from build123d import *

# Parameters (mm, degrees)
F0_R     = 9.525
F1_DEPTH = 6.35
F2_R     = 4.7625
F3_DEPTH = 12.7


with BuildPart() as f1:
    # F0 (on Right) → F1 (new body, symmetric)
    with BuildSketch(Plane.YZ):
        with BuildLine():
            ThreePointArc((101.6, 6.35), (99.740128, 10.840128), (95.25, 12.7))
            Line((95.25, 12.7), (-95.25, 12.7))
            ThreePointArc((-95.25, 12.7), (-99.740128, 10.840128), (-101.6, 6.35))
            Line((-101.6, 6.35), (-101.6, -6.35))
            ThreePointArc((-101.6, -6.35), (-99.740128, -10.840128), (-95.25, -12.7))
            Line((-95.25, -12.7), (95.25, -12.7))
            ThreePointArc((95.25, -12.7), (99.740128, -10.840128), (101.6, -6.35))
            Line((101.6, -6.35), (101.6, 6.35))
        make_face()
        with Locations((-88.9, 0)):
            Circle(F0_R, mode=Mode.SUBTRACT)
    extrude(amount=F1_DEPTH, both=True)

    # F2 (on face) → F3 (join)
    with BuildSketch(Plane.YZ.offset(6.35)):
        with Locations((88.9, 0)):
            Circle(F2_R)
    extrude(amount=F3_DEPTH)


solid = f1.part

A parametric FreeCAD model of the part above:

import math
import FreeCAD as App
import Part
import Sketcher
from FreeCAD import Vector
Q = App.Units.Quantity

doc = App.newDocument("Part")
body = doc.addObject("PartDesign::Body", "Body")

sketch1 = body.newObject("Sketcher::SketchObject", "Sketch")
sketch1.AttachmentSupport = (doc.getObject("YZ_Plane"), [""])
sketch1.MapMode = "FlatFace"
sketch1.addGeometry(Part.ArcOfCircle(Part.Circle(Vector(95, 6, 0), Vector(0, 0, 1), 6), math.radians(0), math.radians(90)), False)
sketch1.addGeometry(Part.LineSegment(Vector(95, 13, 0), Vector(-95, 13, 0)), False)
sketch1.addGeometry(Part.ArcOfCircle(Part.Circle(Vector(-95, 6, 0), Vector(0, 0, 1), 6), math.radians(90), math.radians(180)), False)
sketch1.addGeometry(Part.LineSegment(Vector(-102, 6, 0), Vector(-102, -6, 0)), False)
sketch1.addGeometry(Part.ArcOfCircle(Part.Circle(Vector(-95, -6, 0), Vector(0, 0, 1), 6), math.radians(-180), math.radians(-90)), False)
sketch1.addGeometry(Part.LineSegment(Vector(-95, -13, 0), Vector(95, -13, 0)), False)
sketch1.addGeometry(Part.ArcOfCircle(Part.Circle(Vector(95, -6, 0), Vector(0, 0, 1), 6), math.radians(-90), math.radians(0)), False)
sketch1.addGeometry(Part.LineSegment(Vector(102, -6, 0), Vector(102, 6, 0)), False)
sketch1.addGeometry(Part.Circle(Vector(-89, 0, 0), Vector(0, 0, 1), 10), False)
sketch1.addConstraint(Sketcher.Constraint("Tangent", 0, 2, 1, 1))
sketch1.addConstraint(Sketcher.Constraint("Tangent", 1, 2, 2, 1))
sketch1.addConstraint(Sketcher.Constraint("Tangent", 2, 2, 3, 1))
sketch1.addConstraint(Sketcher.Constraint("Tangent", 3, 2, 4, 1))
sketch1.addConstraint(Sketcher.Constraint("Tangent", 4, 2, 5, 1))
sketch1.addConstraint(Sketcher.Constraint("Tangent", 5, 2, 6, 1))
sketch1.addConstraint(Sketcher.Constraint("Tangent", 6, 2, 7, 1))
sketch1.addConstraint(Sketcher.Constraint("Tangent", 7, 2, 0, 1))
sketch1.addConstraint(Sketcher.Constraint("Horizontal", 1))
sketch1.addConstraint(Sketcher.Constraint("Vertical", 3))
sketch1.addConstraint(Sketcher.Constraint("Horizontal", 5))
sketch1.addConstraint(Sketcher.Constraint("Vertical", 7))
sketch1.addConstraint(Sketcher.Constraint("Equal", 0, 2))
sketch1.addConstraint(Sketcher.Constraint("Equal", 2, 4))
sketch1.addConstraint(Sketcher.Constraint("Equal", 4, 6))
sketch1.addConstraint(Sketcher.Constraint("Symmetric", 0, 3, 4, 3, -1, 1))
sketch1.addConstraint(Sketcher.Constraint("PointOnObject", 8, 3, -1))
sketch1.addConstraint(Sketcher.Constraint("Diameter", 8, Q("0.75 in")))
sketch1.addConstraint(Sketcher.Constraint("Radius", 0, Q("0.25 in")))
sketch1.addConstraint(Sketcher.Constraint("DistanceX", 1, 2, 1, 1, Q("7.5 in")))
sketch1.addConstraint(Sketcher.Constraint("DistanceY", 3, 2, 3, 1, Q("0.5 in")))
sketch1.addConstraint(Sketcher.Constraint("DistanceX", 8, 3, -1, 1, Q("3.5 in")))
pad1 = body.newObject("PartDesign::Pad", "Pad")
pad1.Profile = sketch1
pad1.Length = Q("0.5 in")
pad1.Midplane = True

sketch2 = body.newObject("Sketcher::SketchObject", "Sketch001")
sketch2.AttachmentSupport = (doc.getObject("YZ_Plane"), [""])
sketch2.MapMode = "FlatFace"
sketch2.AttachmentOffset = App.Placement(Vector(0, 0, 0.25 * 25.4), App.Rotation())
sketch2.addGeometry(Part.Circle(Vector(88.9, 0, 0), Vector(0, 0, 1), 4.8), False)
sketch2.addConstraint(Sketcher.Constraint("PointOnObject", 0, 3, -1))
sketch2.addConstraint(Sketcher.Constraint("Diameter", 0, Q("0.375 in")))
sketch2.addConstraint(Sketcher.Constraint("DistanceX", -1, 1, 0, 3, Q("3.5 in")))
pad2 = body.newObject("PartDesign::Pad", "Pad001")
pad2.Profile = sketch2
pad2.Length = Q("0.5 in")

doc.recompute()
